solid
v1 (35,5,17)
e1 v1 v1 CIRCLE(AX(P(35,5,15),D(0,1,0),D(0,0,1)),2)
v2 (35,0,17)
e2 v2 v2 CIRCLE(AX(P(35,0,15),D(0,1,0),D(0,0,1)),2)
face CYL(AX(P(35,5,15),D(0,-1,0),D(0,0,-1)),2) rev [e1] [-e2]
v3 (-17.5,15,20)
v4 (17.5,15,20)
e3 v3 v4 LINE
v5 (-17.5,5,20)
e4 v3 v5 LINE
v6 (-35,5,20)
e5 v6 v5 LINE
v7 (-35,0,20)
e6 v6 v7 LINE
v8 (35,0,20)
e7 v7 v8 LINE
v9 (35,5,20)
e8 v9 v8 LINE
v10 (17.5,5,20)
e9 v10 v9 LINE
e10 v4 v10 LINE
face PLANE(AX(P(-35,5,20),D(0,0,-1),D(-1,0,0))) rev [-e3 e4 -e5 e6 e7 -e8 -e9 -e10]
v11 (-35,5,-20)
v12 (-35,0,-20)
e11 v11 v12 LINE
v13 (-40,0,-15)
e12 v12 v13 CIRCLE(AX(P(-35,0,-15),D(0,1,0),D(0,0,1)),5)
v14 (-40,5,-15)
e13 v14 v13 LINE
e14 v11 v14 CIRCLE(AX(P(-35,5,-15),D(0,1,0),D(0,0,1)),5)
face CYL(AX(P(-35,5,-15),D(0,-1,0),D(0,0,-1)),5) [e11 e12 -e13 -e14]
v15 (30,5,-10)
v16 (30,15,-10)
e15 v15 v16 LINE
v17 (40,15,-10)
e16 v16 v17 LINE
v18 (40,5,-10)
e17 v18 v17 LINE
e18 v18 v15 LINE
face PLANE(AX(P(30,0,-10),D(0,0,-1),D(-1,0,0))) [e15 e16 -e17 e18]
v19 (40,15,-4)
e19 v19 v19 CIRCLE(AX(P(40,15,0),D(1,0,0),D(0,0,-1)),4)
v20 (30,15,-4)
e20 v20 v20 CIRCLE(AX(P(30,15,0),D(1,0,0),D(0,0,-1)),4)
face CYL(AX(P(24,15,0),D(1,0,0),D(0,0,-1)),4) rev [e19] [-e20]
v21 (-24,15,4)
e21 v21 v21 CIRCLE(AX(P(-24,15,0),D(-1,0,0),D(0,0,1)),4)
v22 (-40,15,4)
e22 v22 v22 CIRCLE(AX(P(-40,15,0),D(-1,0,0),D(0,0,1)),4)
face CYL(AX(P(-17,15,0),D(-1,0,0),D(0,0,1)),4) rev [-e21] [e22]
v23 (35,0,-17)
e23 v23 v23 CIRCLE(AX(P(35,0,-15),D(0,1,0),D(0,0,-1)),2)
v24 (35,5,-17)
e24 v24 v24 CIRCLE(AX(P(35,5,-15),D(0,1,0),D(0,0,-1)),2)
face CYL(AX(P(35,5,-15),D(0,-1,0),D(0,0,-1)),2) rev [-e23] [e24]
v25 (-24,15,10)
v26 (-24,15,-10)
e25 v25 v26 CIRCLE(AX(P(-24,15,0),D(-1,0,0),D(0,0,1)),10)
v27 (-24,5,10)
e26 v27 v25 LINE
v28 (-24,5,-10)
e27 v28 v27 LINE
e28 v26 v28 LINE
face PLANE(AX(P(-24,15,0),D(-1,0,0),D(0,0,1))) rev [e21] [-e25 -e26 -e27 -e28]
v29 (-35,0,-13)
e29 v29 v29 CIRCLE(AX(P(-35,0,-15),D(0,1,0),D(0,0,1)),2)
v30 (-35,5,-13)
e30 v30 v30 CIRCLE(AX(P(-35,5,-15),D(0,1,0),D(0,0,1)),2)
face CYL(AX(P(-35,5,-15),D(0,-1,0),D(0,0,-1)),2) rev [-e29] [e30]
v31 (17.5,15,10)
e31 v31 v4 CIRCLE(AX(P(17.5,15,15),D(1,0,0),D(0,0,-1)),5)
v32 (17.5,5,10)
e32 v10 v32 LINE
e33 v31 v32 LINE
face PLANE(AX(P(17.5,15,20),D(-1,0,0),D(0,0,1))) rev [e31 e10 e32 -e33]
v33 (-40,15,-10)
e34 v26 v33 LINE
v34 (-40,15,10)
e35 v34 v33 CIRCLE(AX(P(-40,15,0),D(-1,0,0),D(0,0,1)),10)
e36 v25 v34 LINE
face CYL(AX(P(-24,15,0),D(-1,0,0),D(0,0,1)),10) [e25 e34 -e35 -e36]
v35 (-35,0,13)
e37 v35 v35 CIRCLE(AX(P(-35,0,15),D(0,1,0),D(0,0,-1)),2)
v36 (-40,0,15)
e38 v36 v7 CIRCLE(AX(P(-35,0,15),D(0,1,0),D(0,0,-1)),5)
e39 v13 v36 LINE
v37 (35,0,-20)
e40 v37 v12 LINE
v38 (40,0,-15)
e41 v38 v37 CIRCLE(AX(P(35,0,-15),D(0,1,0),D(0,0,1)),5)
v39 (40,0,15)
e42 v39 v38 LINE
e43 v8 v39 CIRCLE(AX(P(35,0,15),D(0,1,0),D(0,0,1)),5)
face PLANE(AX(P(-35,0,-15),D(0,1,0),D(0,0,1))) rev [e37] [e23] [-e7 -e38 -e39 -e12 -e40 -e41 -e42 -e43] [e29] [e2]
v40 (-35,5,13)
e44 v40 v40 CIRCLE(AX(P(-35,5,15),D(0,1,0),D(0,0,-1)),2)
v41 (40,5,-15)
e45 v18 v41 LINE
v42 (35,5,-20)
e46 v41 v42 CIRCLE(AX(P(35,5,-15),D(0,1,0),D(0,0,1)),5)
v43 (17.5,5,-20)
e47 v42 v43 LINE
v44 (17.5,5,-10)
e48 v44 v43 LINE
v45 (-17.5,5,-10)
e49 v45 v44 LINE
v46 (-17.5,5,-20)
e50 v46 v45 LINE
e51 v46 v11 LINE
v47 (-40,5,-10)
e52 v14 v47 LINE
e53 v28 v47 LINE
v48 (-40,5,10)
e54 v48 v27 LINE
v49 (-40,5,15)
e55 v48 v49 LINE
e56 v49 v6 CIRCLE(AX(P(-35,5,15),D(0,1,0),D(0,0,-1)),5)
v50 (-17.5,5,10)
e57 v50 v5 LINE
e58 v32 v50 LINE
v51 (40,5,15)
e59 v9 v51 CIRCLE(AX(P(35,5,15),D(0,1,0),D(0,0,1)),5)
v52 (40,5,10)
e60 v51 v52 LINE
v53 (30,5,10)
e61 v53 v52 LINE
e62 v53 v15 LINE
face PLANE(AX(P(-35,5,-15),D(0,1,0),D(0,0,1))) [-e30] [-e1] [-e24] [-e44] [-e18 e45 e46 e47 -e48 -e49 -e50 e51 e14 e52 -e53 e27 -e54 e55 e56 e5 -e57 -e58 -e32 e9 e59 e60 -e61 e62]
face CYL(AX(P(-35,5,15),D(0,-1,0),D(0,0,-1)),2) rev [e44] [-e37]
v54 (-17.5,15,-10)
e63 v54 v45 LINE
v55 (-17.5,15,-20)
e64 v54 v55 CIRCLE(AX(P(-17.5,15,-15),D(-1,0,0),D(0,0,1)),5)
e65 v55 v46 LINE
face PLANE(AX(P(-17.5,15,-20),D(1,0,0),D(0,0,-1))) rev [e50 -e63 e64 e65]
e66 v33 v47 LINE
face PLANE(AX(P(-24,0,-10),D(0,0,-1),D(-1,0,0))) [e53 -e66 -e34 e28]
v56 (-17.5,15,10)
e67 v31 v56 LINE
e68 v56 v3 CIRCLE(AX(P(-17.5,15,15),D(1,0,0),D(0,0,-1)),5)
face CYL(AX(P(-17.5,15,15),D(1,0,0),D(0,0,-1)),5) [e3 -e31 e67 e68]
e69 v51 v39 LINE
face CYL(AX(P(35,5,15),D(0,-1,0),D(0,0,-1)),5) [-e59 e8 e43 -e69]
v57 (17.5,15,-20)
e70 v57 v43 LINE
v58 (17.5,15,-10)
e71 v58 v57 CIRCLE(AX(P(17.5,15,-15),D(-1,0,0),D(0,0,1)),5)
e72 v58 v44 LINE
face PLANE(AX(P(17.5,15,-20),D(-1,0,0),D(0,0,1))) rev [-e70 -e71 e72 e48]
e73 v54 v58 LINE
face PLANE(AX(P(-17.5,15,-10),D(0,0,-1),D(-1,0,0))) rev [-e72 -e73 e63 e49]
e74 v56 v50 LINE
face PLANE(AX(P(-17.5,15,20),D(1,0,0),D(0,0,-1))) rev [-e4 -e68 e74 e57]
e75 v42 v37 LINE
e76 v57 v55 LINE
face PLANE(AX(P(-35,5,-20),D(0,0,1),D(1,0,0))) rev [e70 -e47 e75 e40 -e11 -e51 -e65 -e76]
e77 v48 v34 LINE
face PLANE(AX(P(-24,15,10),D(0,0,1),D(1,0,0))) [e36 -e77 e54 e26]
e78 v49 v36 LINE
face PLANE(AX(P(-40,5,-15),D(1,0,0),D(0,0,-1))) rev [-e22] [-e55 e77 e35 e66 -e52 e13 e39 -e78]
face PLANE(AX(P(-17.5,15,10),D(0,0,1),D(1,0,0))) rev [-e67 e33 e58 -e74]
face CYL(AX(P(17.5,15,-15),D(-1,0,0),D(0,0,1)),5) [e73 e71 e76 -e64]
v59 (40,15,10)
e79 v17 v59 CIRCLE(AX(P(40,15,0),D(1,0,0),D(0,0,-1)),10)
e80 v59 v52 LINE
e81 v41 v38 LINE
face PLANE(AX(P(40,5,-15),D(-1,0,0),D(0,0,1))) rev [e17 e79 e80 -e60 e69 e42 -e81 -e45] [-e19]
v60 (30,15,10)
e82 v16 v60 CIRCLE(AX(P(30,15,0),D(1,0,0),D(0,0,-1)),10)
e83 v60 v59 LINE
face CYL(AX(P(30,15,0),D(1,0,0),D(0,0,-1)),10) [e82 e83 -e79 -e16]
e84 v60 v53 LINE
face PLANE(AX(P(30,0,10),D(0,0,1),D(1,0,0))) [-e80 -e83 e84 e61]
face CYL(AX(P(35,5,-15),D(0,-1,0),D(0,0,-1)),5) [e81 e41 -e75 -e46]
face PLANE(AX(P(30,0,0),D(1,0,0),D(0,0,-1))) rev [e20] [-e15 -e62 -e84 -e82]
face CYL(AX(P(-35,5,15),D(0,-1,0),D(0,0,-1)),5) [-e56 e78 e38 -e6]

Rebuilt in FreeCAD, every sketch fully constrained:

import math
import FreeCAD as App
import Part
import Sketcher
Q = App.Units.Quantity


def add_polygon(sketch, points):
    """Adds a closed chain of lines whose ends are joined by coincident constraints."""
    first, n = sketch.GeometryCount, len(points)
    for a, b in zip(points, points[1:] + points[:1]):
        sketch.addGeometry(Part.LineSegment(App.Vector(*a, 0), App.Vector(*b, 0)), False)
    for i in range(n):
        sketch.addConstraint(Sketcher.Constraint("Coincident", first + i, 2, first + (i + 1) % n, 1))

doc = App.newDocument("Part")
params = doc.addObject("Spreadsheet::Sheet", "Params")
for row, (alias, value) in enumerate([
    ("sketch1_diameter", "4 mm"),
    ("sketch1_radius", "5 mm"),
    ("sketch1_width", "70 mm"),
    ("sketch1_height", "30 mm"),
    ("pad1_length", "5 mm"),
    ("sketch2_radius", "10 mm"),
    ("sketch2_width", "15 mm"),
    ("pad2_length", "10 mm"),
    ("sketch3_diameter", "8 mm"),
    ("pocket1_length", "16 mm"),
    ("sketch4_radius", "10 mm"),
    ("sketch4_width", "15 mm"),
    ("pad3_length", "16 mm"),
    ("sketch5_diameter", "8 mm"),
    ("pocket2_length", "23 mm"),
    ("sketch6_width", "35 mm"),
    ("sketch6_height", "10 mm"),
    ("pad4_length", "10 mm"),
    ("sketch7_radius", "5 mm"),
    ("pad5_length", "35 mm"),
    ("sketch8_width", "35 mm"),
    ("sketch8_height", "10 mm"),
    ("pad6_length", "10 mm"),
    ("sketch9_radius", "5 mm"),
    ("pad7_length", "35 mm"),
], start=1):
    params.set(f"A{row}", alias)
    params.set(f"B{row}", "=" + value)
    params.setAlias(f"B{row}", alias)

body = doc.addObject("PartDesign::Body", "Body")

sketch1 = doc.addObject("Sketcher::SketchObject", "Sketch")
body.addObject(sketch1)
sketch1.AttachmentSupport = (doc.XZ_Plane, [""])
sketch1.MapMode = "FlatFace"
sketch1.addGeometry([
    Part.LineSegment(App.Vector(35, -20, 0), App.Vector(-35, -20, 0)),
    Part.ArcOfCircle(Part.Circle(App.Vector(-35, -15, 0), App.Vector(0, 0, 1), 5), math.radians(180), math.radians(270)),
    Part.LineSegment(App.Vector(-40, -15, 0), App.Vector(-40, 15, 0)),
    Part.ArcOfCircle(Part.Circle(App.Vector(-35, 15, 0), App.Vector(0, 0, 1), 5), math.radians(90), math.radians(180)),
    Part.LineSegment(App.Vector(-35, 20, 0), App.Vector(35, 20, 0)),
    Part.ArcOfCircle(Part.Circle(App.Vector(35, 15, 0), App.Vector(0, 0, 1), 5), math.radians(0), math.radians(90)),
    Part.LineSegment(App.Vector(40, 15, 0), App.Vector(40, -15, 0)),
    Part.ArcOfCircle(Part.Circle(App.Vector(35, -15, 0), App.Vector(0, 0, 1), 5), math.radians(-90), math.radians(0)),
    Part.Circle(App.Vector(35, 15, 0), App.Vector(0, 0, 1), 2),
    Part.Circle(App.Vector(-35, 15, 0), App.Vector(0, 0, 1), 2),
    Part.Circle(App.Vector(35, -15, 0), App.Vector(0, 0, 1), 2),
    Part.Circle(App.Vector(-35, -15, 0), App.Vector(0, 0, 1), 2),
], False)
sketch1.addConstraint([
    Sketcher.Constraint("Tangent", 0, 2, 1, 2),
    Sketcher.Constraint("Tangent", 1, 1, 2, 1),
    Sketcher.Constraint("Tangent", 2, 2, 3, 2),
    Sketcher.Constraint("Tangent", 3, 1, 4, 1),
    Sketcher.Constraint("Tangent", 4, 2, 5, 2),
    Sketcher.Constraint("Tangent", 5, 1, 6, 1),
    Sketcher.Constraint("Tangent", 6, 2, 7, 2),
    Sketcher.Constraint("Tangent", 7, 1, 0, 1),
    Sketcher.Constraint("Horizontal", 0),
    Sketcher.Constraint("Vertical", 2),
    Sketcher.Constraint("Horizontal", 4),
    Sketcher.Constraint("Vertical", 6),
    Sketcher.Constraint("Coincident", 8, 3, 5, 3),
    Sketcher.Constraint("Coincident", 9, 3, 3, 3),
    Sketcher.Constraint("Coincident", 10, 3, 7, 3),
    Sketcher.Constraint("Coincident", 11, 3, 1, 3),
    Sketcher.Constraint("Equal", 1, 3),
    Sketcher.Constraint("Equal", 3, 5),
    Sketcher.Constraint("Equal", 5, 7),
    Sketcher.Constraint("Equal", 8, 9),
    Sketcher.Constraint("Equal", 9, 10),
    Sketcher.Constraint("Equal", 10, 11),
    Sketcher.Constraint("Symmetric", 1, 3, 5, 3, -1, 1),
    Sketcher.Constraint("Diameter", 8, Q("4 mm")),
    Sketcher.Constraint("Radius", 1, Q("5 mm")),
    Sketcher.Constraint("DistanceX", 0, 2, 0, 1, Q("70 mm")),
    Sketcher.Constraint("DistanceY", 2, 1, 2, 2, Q("30 mm")),
])
sketch1.setExpression("Constraints[23]", "Params.sketch1_diameter")
sketch1.setExpression("Constraints[24]", "Params.sketch1_radius")
sketch1.setExpression("Constraints[25]", "Params.sketch1_width")
sketch1.setExpression("Constraints[26]", "Params.sketch1_height")
pad1 = doc.addObject("PartDesign::Pad", "Pad")
body.addObject(pad1)
pad1.Profile = sketch1
pad1.setExpression("Length", "Params.pad1_length")
pad1.Reversed = True

sketch2 = doc.addObject("Sketcher::SketchObject", "Sketch001")
body.addObject(sketch2)
sketch2.AttachmentSupport = (doc.YZ_Plane, [""])
sketch2.MapMode = "FlatFace"
sketch2.AttachmentOffset = App.Placement(App.Vector(0, 0, 40), App.Rotation())
sketch2.addGeometry([
    Part.ArcOfCircle(Part.Circle(App.Vector(15, 0, 0), App.Vector(0, 0, 1), 10), math.radians(-90), math.radians(90)),
    Part.LineSegment(App.Vector(15, 10, 0), App.Vector(0, 10, 0)),
    Part.LineSegment(App.Vector(0, 10, 0), App.Vector(0, -10, 0)),
    Part.LineSegment(App.Vector(0, -10, 0), App.Vector(15, -10, 0)),
], False)
sketch2.addConstraint([
    Sketcher.Constraint("Tangent", 0, 2, 1, 1),
    Sketcher.Constraint("Coincident", 1, 2, 2, 1),
    Sketcher.Constraint("Coincident", 2, 2, 3, 1),
    Sketcher.Constraint("Tangent", 3, 2, 0, 1),
    Sketcher.Constraint("Horizontal", 1),
    Sketcher.Constraint("Vertical", 2),
    Sketcher.Constraint("Horizontal", 3),
    Sketcher.Constraint("Symmetric", 1, 2, 2, 2, -1, 1),
    Sketcher.Constraint("Radius", 0, Q("10 mm")),
    Sketcher.Constraint("DistanceX", 1, 2, 1, 1, Q("15 mm")),
])
sketch2.setExpression("Constraints[8]", "Params.sketch2_radius")
sketch2.setExpression("Constraints[9]", "Params.sketch2_width")
pad2 = doc.addObject("PartDesign::Pad", "Pad001")
body.addObject(pad2)
pad2.Profile = sketch2
pad2.setExpression("Length", "Params.pad2_length")
pad2.Reversed = True

sketch3 = doc.addObject("Sketcher::SketchObject", "Sketch002")
body.addObject(sketch3)
sketch3.AttachmentSupport = (doc.YZ_Plane, [""])
sketch3.MapMode = "FlatFace"
sketch3.AttachmentOffset = App.Placement(App.Vector(0, 0, 40), App.Rotation())
sketch3.addGeometry(Part.Circle(App.Vector(15, 0, 0), App.Vector(0, 0, 1), 4), False)
sketch3.addConstraint([
    Sketcher.Constraint("PointOnObject", 0, 3, -1),
    Sketcher.Constraint("Diameter", 0, Q("8 mm")),
    Sketcher.Constraint("DistanceX", -1, 1, 0, 3, Q("15 mm")),
])
sketch3.setExpression("Constraints[1]", "Params.sketch3_diameter")
pocket1 = doc.addObject("PartDesign::Pocket", "Pocket")
body.addObject(pocket1)
pocket1.Profile = sketch3
pocket1.setExpression("Length", "Params.pocket1_length")

sketch4 = doc.addObject("Sketcher::SketchObject", "Sketch003")
body.addObject(sketch4)
sketch4.AttachmentSupport = (doc.YZ_Plane, [""])
sketch4.MapMode = "FlatFace"
sketch4.AttachmentOffset = App.Placement(App.Vector(0, 0, -40), App.Rotation())
sketch4.addGeometry([
    Part.LineSegment(App.Vector(15, -10, 0), App.Vector(0, -10, 0)),
    Part.LineSegment(App.Vector(0, -10, 0), App.Vector(0, 10, 0)),
    Part.LineSegment(App.Vector(0, 10, 0), App.Vector(15, 10, 0)),
    Part.ArcOfCircle(Part.Circle(App.Vector(15, 0, 0), App.Vector(0, 0, 1), 10), math.radians(-90), math.radians(90)),
], False)
sketch4.addConstraint([
    Sketcher.Constraint("Coincident", 0, 2, 1, 1),
    Sketcher.Constraint("Coincident", 1, 2, 2, 1),
    Sketcher.Constraint("Tangent", 2, 2, 3, 2),
    Sketcher.Constraint("Tangent", 3, 1, 0, 1),
    Sketcher.Constraint("Horizontal", 0),
    Sketcher.Constraint("Vertical", 1),
    Sketcher.Constraint("Horizontal", 2),
    Sketcher.Constraint("Symmetric", 0, 2, 1, 2, -1, 1),
    Sketcher.Constraint("Radius", 3, Q("10 mm")),
    Sketcher.Constraint("DistanceX", 0, 2, 0, 1, Q("15 mm")),
])
sketch4.setExpression("Constraints[8]", "Params.sketch4_radius")
sketch4.setExpression("Constraints[9]", "Params.sketch4_width")
pad3 = doc.addObject("PartDesign::Pad", "Pad002")
body.addObject(pad3)
pad3.Profile = sketch4
pad3.setExpression("Length", "Params.pad3_length")

sketch5 = doc.addObject("Sketcher::SketchObject", "Sketch004")
body.addObject(sketch5)
sketch5.AttachmentSupport = (doc.YZ_Plane, [""])
sketch5.MapMode = "FlatFace"
sketch5.AttachmentOffset = App.Placement(App.Vector(0, 0, -40), App.Rotation())
sketch5.addGeometry(Part.Circle(App.Vector(15, 0, 0), App.Vector(0, 0, 1), 4), False)
sketch5.addConstraint([
    Sketcher.Constraint("PointOnObject", 0, 3, -1),
    Sketcher.Constraint("Diameter", 0, Q("8 mm")),
    Sketcher.Constraint("DistanceX", -1, 1, 0, 3, Q("15 mm")),
])
sketch5.setExpression("Constraints[1]", "Params.sketch5_diameter")
pocket2 = doc.addObject("PartDesign::Pocket", "Pocket001")
body.addObject(pocket2)
pocket2.Profile = sketch5
pocket2.setExpression("Length", "Params.pocket2_length")
pocket2.Reversed = True

sketch6 = doc.addObject("Sketcher::SketchObject", "Sketch005")
body.addObject(sketch6)
sketch6.AttachmentSupport = (doc.XZ_Plane, [""])
sketch6.MapMode = "FlatFace"
sketch6.AttachmentOffset = App.Placement(App.Vector(0, 0, -5), App.Rotation())
add_polygon(sketch6, [(-18, -20), (-18, -10), (18, -10), (18, -20)])
sketch6.addConstraint([
    Sketcher.Constraint("Vertical", 0),
    Sketcher.Constraint("Horizontal", 1),
    Sketcher.Constraint("Vertical", 2),
    Sketcher.Constraint("Horizontal", 3),
    Sketcher.Constraint("DistanceX", 1, 1, 1, 2, Q("35 mm")),
    Sketcher.Constraint("DistanceY", 0, 1, 0, 2, Q("10 mm")),
    Sketcher.Constraint("DistanceY", 0, 2, -1, 1, Q("10 mm")),
    Sketcher.Constraint("DistanceX", 0, 2, -1, 1, Q("17.5 mm")),
])
sketch6.setExpression("Constraints[8]", "Params.sketch6_width")
sketch6.setExpression("Constraints[9]", "Params.sketch6_height")
pad4 = doc.addObject("PartDesign::Pad", "Pad003")
body.addObject(pad4)
pad4.Profile = sketch6
pad4.setExpression("Length", "Params.pad4_length")
pad4.Reversed = True

sketch7 = doc.addObject("Sketcher::SketchObject", "Sketch006")
body.addObject(sketch7)
sketch7.AttachmentSupport = (doc.YZ_Plane, [""])
sketch7.MapMode = "FlatFace"
sketch7.AttachmentOffset = App.Placement(App.Vector(0, 0, -17.5), App.Rotation())
sketch7.addGeometry([
    Part.LineSegment(App.Vector(15, -20, 0), App.Vector(15, -10, 0)),
    Part.ArcOfCircle(Part.Circle(App.Vector(15, -15, 0), App.Vector(0, 0, 1), 5), math.radians(-90), math.radians(90)),
], False)
sketch7.addConstraint([
    Sketcher.Constraint("Coincident", 0, 1, 1, 1),
    Sketcher.Constraint("Coincident", 1, 2, 0, 2),
    Sketcher.Constraint("Vertical", 0),
    Sketcher.Constraint("Vertical", 1, 3, 0, 1),
    Sketcher.Constraint("Radius", 1, Q("5 mm")),
    Sketcher.Constraint("DistanceX", -1, 1, 1, 3, Q("15 mm")),
    Sketcher.Constraint("DistanceY", 1, 3, -1, 1, Q("15 mm")),
])
sketch7.setExpression("Constraints[4]", "Params.sketch7_radius")
pad5 = doc.addObject("PartDesign::Pad", "Pad004")
body.addObject(pad5)
pad5.Profile = sketch7
pad5.setExpression("Length", "Params.pad5_length")

sketch8 = doc.addObject("Sketcher::SketchObject", "Sketch007")
body.addObject(sketch8)
sketch8.AttachmentSupport = (doc.XZ_Plane, [""])
sketch8.MapMode = "FlatFace"
sketch8.AttachmentOffset = App.Placement(App.Vector(0, 0, -5), App.Rotation())
add_polygon(sketch8, [(-18, 10), (-18, 20), (18, 20), (18, 10)])
sketch8.addConstraint([
    Sketcher.Constraint("Vertical", 0),
    Sketcher.Constraint("Horizontal", 1),
    Sketcher.Constraint("Vertical", 2),
    Sketcher.Constraint("Horizontal", 3),
    Sketcher.Constraint("DistanceX", 1, 1, 1, 2, Q("35 mm")),
    Sketcher.Constraint("DistanceY", 0, 1, 0, 2, Q("10 mm")),
    Sketcher.Constraint("DistanceY", -1, 1, 0, 2, Q("20 mm")),
    Sketcher.Constraint("DistanceX", 0, 2, -1, 1, Q("17.5 mm")),
])
sketch8.setExpression("Constraints[8]", "Params.sketch8_width")
sketch8.setExpression("Constraints[9]", "Params.sketch8_height")
pad6 = doc.addObject("PartDesign::Pad", "Pad005")
body.addObject(pad6)
pad6.Profile = sketch8
pad6.setExpression("Length", "Params.pad6_length")
pad6.Reversed = True

sketch9 = doc.addObject("Sketcher::SketchObject", "Sketch008")
body.addObject(sketch9)
sketch9.AttachmentSupport = (doc.YZ_Plane, [""])
sketch9.MapMode = "FlatFace"
sketch9.AttachmentOffset = App.Placement(App.Vector(0, 0, 17.5), App.Rotation())
sketch9.addGeometry([
    Part.LineSegment(App.Vector(15, 20, 0), App.Vector(15, 10, 0)),
    Part.ArcOfCircle(Part.Circle(App.Vector(15, 15, 0), App.Vector(0, 0, 1), 5), math.radians(-90), math.radians(90)),
], False)
sketch9.addConstraint([
    Sketcher.Constraint("Coincident", 0, 1, 1, 2),
    Sketcher.Constraint("Coincident", 1, 1, 0, 2),
    Sketcher.Constraint("Vertical", 0),
    Sketcher.Constraint("Vertical", 1, 3, 0, 1),
    Sketcher.Constraint("Radius", 1, Q("5 mm")),
    Sketcher.Constraint("DistanceX", -1, 1, 1, 3, Q("15 mm")),
    Sketcher.Constraint("DistanceY", -1, 1, 1, 3, Q("15 mm")),
])
sketch9.setExpression("Constraints[4]", "Params.sketch9_radius")
pad7 = doc.addObject("PartDesign::Pad", "Pad006")
body.addObject(pad7)
pad7.Profile = sketch9
pad7.setExpression("Length", "Params.pad7_length")
pad7.Reversed = True

doc.recompute()
